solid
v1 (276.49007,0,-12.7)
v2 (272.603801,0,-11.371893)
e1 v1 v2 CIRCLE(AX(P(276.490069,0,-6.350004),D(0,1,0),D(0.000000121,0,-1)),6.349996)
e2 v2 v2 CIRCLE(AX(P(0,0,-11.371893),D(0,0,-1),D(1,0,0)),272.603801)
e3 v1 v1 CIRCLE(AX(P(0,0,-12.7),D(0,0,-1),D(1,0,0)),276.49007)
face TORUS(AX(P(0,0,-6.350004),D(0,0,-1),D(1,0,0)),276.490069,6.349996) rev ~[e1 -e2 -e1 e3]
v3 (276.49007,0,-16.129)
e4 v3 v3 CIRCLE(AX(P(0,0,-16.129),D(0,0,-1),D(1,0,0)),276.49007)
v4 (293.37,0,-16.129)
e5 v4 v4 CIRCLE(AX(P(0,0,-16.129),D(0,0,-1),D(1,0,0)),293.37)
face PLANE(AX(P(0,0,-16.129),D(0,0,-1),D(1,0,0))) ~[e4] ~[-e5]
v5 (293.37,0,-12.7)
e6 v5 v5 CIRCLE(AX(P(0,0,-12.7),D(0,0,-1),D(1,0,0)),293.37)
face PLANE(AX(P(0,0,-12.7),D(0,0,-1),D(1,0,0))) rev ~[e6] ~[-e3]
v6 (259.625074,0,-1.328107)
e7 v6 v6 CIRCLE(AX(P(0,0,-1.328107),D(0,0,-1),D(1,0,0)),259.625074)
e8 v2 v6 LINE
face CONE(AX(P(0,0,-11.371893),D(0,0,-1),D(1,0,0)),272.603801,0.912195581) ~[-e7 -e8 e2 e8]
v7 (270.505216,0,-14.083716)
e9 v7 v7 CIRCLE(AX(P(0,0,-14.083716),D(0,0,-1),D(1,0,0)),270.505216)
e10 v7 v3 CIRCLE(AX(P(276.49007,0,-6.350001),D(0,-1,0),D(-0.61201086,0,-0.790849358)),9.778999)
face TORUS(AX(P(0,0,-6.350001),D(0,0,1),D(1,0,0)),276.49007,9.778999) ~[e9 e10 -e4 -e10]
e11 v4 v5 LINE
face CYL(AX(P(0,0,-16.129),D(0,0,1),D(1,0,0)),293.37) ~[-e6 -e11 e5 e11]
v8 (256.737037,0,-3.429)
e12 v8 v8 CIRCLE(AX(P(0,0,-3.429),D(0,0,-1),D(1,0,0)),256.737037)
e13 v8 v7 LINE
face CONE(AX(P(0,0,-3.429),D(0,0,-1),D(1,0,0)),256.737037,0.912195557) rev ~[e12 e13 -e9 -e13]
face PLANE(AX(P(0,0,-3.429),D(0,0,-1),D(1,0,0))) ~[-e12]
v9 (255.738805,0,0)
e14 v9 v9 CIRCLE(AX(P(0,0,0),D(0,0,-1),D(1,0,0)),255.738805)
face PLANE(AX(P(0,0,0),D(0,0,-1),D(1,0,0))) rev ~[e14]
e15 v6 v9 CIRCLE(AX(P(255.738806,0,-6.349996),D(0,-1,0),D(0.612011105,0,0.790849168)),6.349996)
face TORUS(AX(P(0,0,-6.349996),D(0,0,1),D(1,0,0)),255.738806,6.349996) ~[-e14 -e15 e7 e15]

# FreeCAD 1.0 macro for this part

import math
import FreeCAD as App
import Part
import Sketcher

V = App.Vector
Q = App.Units.Quantity

doc = App.newDocument("Part")
body = doc.addObject("PartDesign::Body", "Body")

# Sketch on XZ plane
sketch1 = body.newObject("Sketcher::SketchObject", "Sketch")
sketch1.AttachmentSupport = (doc.getObject("XZ_Plane"), [""])
sketch1.MapMode = "FlatFace"
sketch1.addGeometry([
    Part.LineSegment(V(255.738805, 0, 0), V(0, 0, 0)),  # 0
    Part.LineSegment(V(0, 0, 0), V(0, -3.429, 0)),  # 1
    Part.LineSegment(V(0, -3.429, 0), V(256.737037, -3.429, 0)),  # 2
    Part.LineSegment(V(256.737037, -3.429, 0), V(270.505216, -14.083716, 0)),  # 3
    Part.ArcOfCircle(Part.Circle(V(276.49007, -6.350001, 0), V(0, 0, 1), 9.778999), math.radians(-127.735044), math.radians(-89.999999)),  # 4
    Part.LineSegment(V(276.49007, -16.129, 0), V(293.37, -16.129, 0)),  # 5
    Part.LineSegment(V(293.37, -16.129, 0), V(293.37, -12.7, 0)),  # 6
    Part.LineSegment(V(293.37, -12.7, 0), V(276.49007, -12.7, 0)),  # 7
    Part.ArcOfCircle(Part.Circle(V(276.490069, -6.350004, 0), V(0, 0, 1), 6.349996), math.radians(-127.735061), math.radians(-89.999993)),  # 8
    Part.LineSegment(V(272.603801, -11.371893, 0), V(259.625074, -1.328107, 0)),  # 9
    Part.ArcOfCircle(Part.Circle(V(255.738806, -6.349996, 0), V(0, 0, 1), 6.349996), math.radians(52.264939), math.radians(90.000007)),  # 10
], False)
sketch1.addConstraint([
    Sketcher.Constraint("Coincident", 0, 2, 1, 1),
    Sketcher.Constraint("Coincident", 1, 2, 2, 1),
    Sketcher.Constraint("Coincident", 2, 2, 3, 1),
    Sketcher.Constraint("Tangent", 3, 2, 4, 1),
    Sketcher.Constraint("Tangent", 4, 2, 5, 1),
    Sketcher.Constraint("Coincident", 5, 2, 6, 1),
    Sketcher.Constraint("Coincident", 6, 2, 7, 1),
    Sketcher.Constraint("Tangent", 7, 2, 8, 2),
    Sketcher.Constraint("Tangent", 8, 1, 9, 1),
    Sketcher.Constraint("Tangent", 9, 2, 10, 1),
    Sketcher.Constraint("Tangent", 10, 2, 0, 1),
    Sketcher.Constraint("Horizontal", 0),
    Sketcher.Constraint("Vertical", 1),
    Sketcher.Constraint("Horizontal", 2),
    Sketcher.Constraint("Horizontal", 5),
    Sketcher.Constraint("Vertical", 6),
    Sketcher.Constraint("Horizontal", 7),
    Sketcher.Constraint("Coincident", 0, 2, -1, 1),
    Sketcher.Constraint("Coincident", 8, 3, 4, 3),
    Sketcher.Constraint("Equal", 8, 10),
    Sketcher.Constraint("Parallel", 3, 9),
    Sketcher.Constraint("Equal", 1, 6),
    Sketcher.Constraint("Radius", 8, Q("0.2499999 in")),
    Sketcher.Constraint("Radius", 4, Q("0.385 in")),
    Sketcher.Constraint("DistanceY", 6, 2, -1, 1, Q("0.5 in")),
    Sketcher.Constraint("DistanceX", -1, 1, 5, 2, Q("11.55 in")),
    Sketcher.Constraint("DistanceX", 5, 1, 5, 2, 16.87993),
    Sketcher.Constraint("DistanceX", -1, 1, 8, 1, 272.603801),
])
revolution = body.newObject("PartDesign::Revolution", "Revolution")
revolution.Profile = sketch1
revolution.ReferenceAxis = (sketch1, ["V_Axis"])
revolution.Angle = 360

doc.recompute()
